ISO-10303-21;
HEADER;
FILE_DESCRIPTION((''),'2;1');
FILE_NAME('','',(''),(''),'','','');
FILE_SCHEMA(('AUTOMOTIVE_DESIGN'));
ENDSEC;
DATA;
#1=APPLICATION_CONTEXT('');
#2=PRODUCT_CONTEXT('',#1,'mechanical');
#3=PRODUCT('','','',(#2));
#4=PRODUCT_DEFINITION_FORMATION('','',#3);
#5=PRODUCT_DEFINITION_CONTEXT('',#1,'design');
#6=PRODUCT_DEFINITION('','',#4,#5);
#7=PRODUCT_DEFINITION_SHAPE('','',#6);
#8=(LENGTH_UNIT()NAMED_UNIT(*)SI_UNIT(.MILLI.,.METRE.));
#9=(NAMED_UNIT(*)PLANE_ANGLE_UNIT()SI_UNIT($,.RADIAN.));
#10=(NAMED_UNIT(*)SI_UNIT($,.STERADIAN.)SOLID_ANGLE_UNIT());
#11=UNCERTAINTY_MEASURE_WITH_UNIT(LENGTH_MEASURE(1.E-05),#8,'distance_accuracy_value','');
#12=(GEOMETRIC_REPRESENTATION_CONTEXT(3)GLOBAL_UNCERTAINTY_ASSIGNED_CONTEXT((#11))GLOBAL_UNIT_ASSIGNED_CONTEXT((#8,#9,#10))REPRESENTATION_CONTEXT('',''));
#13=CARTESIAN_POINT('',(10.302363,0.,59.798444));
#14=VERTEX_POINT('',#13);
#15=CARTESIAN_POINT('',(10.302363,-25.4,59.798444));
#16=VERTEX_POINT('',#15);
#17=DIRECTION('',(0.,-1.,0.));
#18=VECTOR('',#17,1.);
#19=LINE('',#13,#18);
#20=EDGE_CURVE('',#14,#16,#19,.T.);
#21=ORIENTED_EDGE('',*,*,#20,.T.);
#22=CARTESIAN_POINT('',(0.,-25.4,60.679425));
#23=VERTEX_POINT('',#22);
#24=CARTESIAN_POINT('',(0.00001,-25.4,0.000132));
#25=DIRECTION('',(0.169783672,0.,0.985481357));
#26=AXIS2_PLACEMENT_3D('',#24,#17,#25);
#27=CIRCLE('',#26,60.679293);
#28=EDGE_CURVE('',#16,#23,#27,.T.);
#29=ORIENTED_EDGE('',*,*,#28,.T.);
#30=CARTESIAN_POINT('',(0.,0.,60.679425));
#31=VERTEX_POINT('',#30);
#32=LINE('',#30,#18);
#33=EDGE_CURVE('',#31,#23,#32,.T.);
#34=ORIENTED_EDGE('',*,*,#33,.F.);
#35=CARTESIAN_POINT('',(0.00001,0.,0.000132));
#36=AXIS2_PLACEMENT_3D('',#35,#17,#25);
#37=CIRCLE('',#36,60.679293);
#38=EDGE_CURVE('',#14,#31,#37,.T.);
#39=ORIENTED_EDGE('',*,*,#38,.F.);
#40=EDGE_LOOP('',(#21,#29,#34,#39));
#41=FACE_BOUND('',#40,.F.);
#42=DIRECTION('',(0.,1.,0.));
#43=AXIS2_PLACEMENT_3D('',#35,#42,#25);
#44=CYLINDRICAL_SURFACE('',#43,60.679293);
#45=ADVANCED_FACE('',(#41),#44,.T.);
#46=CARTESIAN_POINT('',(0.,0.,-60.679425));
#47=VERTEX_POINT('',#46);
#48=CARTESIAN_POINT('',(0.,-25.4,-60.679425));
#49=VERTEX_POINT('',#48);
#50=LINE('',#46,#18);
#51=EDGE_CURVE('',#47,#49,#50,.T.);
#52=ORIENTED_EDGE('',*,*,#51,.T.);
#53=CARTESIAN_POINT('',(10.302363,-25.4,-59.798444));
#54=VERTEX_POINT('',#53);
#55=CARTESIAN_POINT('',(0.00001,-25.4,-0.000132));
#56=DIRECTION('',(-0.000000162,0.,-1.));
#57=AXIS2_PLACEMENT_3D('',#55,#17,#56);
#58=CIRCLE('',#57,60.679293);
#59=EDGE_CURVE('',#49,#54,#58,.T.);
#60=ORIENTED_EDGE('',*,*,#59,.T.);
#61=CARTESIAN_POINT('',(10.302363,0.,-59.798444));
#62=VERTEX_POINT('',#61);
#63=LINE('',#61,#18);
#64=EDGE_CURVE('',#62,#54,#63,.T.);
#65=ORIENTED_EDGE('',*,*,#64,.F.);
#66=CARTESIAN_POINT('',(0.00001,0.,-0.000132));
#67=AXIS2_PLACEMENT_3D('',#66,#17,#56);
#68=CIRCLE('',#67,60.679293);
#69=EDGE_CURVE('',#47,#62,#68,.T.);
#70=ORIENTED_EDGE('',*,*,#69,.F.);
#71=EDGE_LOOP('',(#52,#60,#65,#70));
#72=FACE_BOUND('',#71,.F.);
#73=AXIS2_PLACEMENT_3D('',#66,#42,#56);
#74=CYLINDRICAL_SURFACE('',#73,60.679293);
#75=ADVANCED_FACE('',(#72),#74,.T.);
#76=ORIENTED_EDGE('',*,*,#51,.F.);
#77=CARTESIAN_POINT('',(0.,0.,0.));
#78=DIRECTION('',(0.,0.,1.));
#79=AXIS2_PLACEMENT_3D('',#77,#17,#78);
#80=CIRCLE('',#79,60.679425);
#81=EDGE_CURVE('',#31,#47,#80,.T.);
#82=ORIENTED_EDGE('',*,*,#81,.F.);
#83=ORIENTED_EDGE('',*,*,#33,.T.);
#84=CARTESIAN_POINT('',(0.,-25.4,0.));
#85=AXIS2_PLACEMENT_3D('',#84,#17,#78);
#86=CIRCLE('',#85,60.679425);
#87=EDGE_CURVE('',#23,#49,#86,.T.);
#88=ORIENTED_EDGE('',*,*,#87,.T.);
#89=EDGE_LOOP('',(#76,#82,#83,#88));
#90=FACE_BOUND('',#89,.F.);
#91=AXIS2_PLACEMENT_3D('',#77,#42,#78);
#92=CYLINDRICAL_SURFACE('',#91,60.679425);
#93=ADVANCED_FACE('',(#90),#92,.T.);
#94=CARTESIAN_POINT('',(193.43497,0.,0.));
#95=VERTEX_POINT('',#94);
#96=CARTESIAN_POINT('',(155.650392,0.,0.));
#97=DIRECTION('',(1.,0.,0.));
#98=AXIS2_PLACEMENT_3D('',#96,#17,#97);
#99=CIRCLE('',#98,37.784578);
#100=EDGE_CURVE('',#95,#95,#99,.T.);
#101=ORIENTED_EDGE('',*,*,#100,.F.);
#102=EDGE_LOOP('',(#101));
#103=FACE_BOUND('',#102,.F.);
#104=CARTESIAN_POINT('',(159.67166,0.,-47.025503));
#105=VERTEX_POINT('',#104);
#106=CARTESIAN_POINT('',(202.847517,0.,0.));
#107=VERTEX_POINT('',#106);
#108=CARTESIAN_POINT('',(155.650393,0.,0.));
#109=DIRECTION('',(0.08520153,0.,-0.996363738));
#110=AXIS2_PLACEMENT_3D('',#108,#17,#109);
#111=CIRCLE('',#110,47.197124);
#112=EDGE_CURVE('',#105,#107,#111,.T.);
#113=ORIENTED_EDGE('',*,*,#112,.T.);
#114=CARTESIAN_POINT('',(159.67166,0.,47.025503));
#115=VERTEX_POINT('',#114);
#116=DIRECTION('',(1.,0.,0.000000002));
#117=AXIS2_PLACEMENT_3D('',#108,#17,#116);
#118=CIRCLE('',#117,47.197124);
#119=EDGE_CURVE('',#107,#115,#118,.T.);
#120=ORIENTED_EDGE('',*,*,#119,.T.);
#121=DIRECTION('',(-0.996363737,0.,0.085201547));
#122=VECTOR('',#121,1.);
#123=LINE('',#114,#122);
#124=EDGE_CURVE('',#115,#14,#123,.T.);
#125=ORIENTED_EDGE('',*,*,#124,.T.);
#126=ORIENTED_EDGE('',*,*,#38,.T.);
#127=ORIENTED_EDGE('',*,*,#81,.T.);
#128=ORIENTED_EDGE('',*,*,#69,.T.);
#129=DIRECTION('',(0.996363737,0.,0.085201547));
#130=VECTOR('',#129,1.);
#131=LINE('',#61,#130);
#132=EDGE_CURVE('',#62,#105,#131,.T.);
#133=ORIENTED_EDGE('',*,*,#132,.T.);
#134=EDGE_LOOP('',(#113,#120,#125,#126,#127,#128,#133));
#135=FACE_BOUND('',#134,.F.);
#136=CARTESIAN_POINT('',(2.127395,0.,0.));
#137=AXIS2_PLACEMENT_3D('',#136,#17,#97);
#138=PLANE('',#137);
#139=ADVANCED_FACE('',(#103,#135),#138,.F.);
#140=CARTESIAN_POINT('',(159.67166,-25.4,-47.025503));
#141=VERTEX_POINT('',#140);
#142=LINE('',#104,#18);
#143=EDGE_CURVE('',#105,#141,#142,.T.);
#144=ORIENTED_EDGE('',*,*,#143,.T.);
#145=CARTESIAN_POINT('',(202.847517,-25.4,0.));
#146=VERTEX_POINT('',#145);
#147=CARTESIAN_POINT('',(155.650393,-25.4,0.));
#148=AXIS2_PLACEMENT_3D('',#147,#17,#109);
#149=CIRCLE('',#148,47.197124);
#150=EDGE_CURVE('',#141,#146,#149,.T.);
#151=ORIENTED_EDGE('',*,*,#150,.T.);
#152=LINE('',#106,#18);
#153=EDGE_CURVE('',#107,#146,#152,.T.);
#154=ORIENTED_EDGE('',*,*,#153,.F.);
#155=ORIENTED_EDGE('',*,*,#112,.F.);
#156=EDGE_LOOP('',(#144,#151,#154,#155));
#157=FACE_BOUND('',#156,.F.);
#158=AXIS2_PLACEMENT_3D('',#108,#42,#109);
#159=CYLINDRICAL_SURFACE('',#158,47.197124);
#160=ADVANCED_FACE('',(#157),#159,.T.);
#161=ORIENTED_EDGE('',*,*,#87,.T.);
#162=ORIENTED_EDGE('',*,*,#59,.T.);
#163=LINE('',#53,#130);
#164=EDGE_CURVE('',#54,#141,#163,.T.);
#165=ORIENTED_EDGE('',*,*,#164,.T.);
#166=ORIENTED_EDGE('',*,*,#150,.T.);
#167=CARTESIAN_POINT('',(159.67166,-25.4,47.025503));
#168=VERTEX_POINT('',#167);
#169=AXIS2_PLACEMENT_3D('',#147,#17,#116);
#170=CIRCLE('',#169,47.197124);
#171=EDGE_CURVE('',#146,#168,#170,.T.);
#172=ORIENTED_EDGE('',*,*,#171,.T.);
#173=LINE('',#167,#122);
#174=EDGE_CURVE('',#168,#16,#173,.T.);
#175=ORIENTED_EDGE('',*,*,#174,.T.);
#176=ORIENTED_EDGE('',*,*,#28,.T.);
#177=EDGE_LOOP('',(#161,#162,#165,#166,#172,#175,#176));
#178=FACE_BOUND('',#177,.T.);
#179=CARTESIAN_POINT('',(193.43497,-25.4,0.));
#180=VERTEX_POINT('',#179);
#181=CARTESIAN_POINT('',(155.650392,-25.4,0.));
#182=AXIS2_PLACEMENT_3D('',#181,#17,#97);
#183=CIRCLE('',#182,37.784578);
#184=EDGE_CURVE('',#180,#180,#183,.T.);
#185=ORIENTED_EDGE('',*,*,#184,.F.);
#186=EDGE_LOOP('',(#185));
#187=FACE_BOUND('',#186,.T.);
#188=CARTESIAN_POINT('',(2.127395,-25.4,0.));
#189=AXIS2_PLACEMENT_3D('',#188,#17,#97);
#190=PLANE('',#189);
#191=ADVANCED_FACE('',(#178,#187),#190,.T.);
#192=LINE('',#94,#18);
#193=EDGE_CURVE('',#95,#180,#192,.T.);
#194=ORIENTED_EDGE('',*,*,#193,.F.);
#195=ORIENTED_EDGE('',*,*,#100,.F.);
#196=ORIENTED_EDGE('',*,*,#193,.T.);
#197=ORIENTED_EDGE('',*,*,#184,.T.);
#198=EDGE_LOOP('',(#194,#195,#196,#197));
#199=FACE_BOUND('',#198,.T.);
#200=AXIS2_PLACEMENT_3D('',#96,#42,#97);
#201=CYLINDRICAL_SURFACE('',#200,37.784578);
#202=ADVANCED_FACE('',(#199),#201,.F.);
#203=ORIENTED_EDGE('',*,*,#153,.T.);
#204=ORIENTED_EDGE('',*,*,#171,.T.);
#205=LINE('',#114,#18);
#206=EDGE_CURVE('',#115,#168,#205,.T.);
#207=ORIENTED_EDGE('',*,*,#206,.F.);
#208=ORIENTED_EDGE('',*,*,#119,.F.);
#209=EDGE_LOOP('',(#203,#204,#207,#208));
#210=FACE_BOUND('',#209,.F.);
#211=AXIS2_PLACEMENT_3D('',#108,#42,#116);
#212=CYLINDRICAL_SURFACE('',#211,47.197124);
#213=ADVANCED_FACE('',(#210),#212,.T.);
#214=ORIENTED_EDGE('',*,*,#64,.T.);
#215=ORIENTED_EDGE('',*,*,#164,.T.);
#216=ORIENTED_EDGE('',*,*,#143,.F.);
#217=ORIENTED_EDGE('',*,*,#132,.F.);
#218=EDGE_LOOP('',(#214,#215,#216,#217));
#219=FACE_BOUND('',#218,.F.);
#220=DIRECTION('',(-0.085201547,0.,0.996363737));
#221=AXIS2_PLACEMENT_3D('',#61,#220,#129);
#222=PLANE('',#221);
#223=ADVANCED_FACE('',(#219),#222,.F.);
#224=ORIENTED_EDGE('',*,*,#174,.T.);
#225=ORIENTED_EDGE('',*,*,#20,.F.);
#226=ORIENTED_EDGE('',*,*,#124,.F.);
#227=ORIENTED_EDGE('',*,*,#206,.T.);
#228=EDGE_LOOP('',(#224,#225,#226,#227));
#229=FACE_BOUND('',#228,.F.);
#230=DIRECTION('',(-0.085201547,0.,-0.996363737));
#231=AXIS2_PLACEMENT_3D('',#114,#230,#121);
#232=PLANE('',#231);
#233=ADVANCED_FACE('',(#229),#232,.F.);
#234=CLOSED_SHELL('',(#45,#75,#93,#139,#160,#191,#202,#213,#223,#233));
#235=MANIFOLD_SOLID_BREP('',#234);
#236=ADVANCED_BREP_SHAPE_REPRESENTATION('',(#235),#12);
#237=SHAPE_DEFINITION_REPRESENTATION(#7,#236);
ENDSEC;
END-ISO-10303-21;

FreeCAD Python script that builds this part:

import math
import FreeCAD as App
import Part
import Sketcher
from FreeCAD import Vector
Q = App.Units.Quantity

doc = App.newDocument("Part")
body = doc.addObject("PartDesign::Body", "Body")

# Sketch on XZ plane
sketch1 = body.newObject("Sketcher::SketchObject", "Sketch")
sketch1.AttachmentSupport = (doc.getObject("XZ_Plane"), [""])
sketch1.MapMode = "FlatFace"
sketch1.addGeometry([
    Part.ArcOfCircle(Part.Circle(Vector(0, 0, 0), Vector(0, 0, 1), 61), math.radians(80.22), math.radians(90)),  # 0
    Part.ArcOfCircle(Part.Circle(Vector(0, 0, 0), Vector(0, 0, 1), 61), math.radians(90), math.radians(270)),  # 1
    Part.ArcOfCircle(Part.Circle(Vector(0, 0, 0), Vector(0, 0, 1), 61), math.radians(-90), math.radians(-80.22)),  # 2
    Part.LineSegment(Vector(10, -60, 0), Vector(160, -47, 0)),  # 3
    Part.ArcOfCircle(Part.Circle(Vector(156, 0, 0), Vector(0, 0, 1), 47), math.radians(-85), math.radians(0)),  # 4
    Part.ArcOfCircle(Part.Circle(Vector(156, 0, 0), Vector(0, 0, 1), 47), math.radians(0), math.radians(85)),  # 5
    Part.LineSegment(Vector(160, 47, 0), Vector(10, 60, 0)),  # 6
    Part.Circle(Vector(0, 0, 0), Vector(0, 0, 1), 51),  # 7
    Part.Circle(Vector(156, 0, 0), Vector(0, 0, 1), 38),  # 8
], False)
sketch1.addConstraint([
    Sketcher.Constraint("Tangent", 0, 2, 1, 1),
    Sketcher.Constraint("Tangent", 1, 2, 2, 1),
    Sketcher.Constraint("Coincident", 2, 2, 3, 1),
    Sketcher.Constraint("Tangent", 3, 2, 4, 1),
    Sketcher.Constraint("Tangent", 4, 2, 5, 1),
    Sketcher.Constraint("Tangent", 5, 2, 6, 1),
    Sketcher.Constraint("Coincident", 6, 2, 0, 1),
    Sketcher.Constraint("Coincident", 1, 3, -1, 1),
    Sketcher.Constraint("Coincident", 7, 3, -1, 1),
    Sketcher.Constraint("Coincident", 8, 3, 4, 3),
    Sketcher.Constraint("Equal", 0, 2),
    Sketcher.Constraint("Equal", 4, 5),
    Sketcher.Constraint("Symmetric", 3, 2, 5, 2, -1),
    Sketcher.Constraint("PointOnObject", 0, 2, -2),
    Sketcher.Constraint("PointOnObject", 1, 2, -2),
    Sketcher.Constraint("PointOnObject", 4, 2, -1),
    Sketcher.Constraint("Diameter", 7, 101.602456),
    Sketcher.Constraint("Diameter", 8, 75.569156),
    Sketcher.Constraint("Radius", 0, 60.679293),
    Sketcher.Constraint("Radius", 1, 60.679425),
    Sketcher.Constraint("Radius", 4, 47.197124),
    Sketcher.Constraint("DistanceX", -1, 1, 3, 2, 159.67166),
    Sketcher.Constraint("DistanceY", 1, 2, 2, 2, 0.880981),
])
pad1 = body.newObject("PartDesign::Pad", "Pad")
pad1.Profile = sketch1
pad1.Length = Q("1 in")

# Sketch on XZ plane
sketch2 = body.newObject("Sketcher::SketchObject", "Sketch001")
sketch2.AttachmentSupport = (doc.getObject("XZ_Plane"), [""])
sketch2.MapMode = "FlatFace"
sketch2.addGeometry(Part.Circle(Vector(0, 0, 0), Vector(0, 0, 1), 53), False)
sketch2.addConstraint([
    Sketcher.Constraint("Coincident", 0, 3, -1, 1),
    Sketcher.Constraint("Diameter", 0, 105.188788),
])
pad2 = body.newObject("PartDesign::Pad", "Pad001")
pad2.Profile = sketch2
pad2.Length = Q("1 in")

doc.recompute()
